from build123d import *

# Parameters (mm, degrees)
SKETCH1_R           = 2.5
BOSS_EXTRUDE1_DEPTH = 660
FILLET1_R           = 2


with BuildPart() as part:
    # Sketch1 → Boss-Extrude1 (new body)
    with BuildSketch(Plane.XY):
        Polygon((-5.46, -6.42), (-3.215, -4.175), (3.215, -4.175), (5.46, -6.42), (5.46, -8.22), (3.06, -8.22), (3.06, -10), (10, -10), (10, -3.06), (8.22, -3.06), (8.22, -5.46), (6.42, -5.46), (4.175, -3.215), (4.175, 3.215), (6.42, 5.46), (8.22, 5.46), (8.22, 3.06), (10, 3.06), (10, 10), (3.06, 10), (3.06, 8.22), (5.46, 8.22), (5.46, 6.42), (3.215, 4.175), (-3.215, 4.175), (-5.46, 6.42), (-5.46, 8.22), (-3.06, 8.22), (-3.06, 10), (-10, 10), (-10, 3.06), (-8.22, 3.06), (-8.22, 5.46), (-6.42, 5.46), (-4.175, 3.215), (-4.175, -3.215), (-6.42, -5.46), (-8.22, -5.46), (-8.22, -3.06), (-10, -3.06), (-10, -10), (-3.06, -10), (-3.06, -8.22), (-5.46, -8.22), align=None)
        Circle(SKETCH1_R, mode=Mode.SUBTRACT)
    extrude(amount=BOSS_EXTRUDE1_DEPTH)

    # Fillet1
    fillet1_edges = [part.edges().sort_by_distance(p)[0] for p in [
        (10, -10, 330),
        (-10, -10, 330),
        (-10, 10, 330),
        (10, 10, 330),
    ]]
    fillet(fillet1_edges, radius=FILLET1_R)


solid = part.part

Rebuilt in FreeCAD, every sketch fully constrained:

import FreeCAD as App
import Part
import Sketcher


def edges_at(feature, points):
    """Names of the edges that pass closest to the given points."""
    edges = feature.Shape.Edges
    near = lambda p: min(range(len(edges)), key=lambda i: edges[i].distToShape(Part.Vertex(*p))[0])
    return sorted({f"Edge{near(p) + 1}" for p in points})

doc = App.newDocument("Part")
params = doc.addObject("Spreadsheet::Sheet", "Params")
for row, (alias, value) in enumerate([
    ("sketch1_diameter", "5 mm"),
    ("sketch1_width", "2.4 mm"),
    ("sketch1_width2", "1.8 mm"),
    ("sketch1_width3", "6.43 mm"),
    ("sketch1_width4", "6.94 mm"),
    ("pad1_length", "660 mm"),
    ("fillet_radius", "2 mm"),
], start=1):
    params.set(f"A{row}", alias)
    params.set(f"B{row}", "=" + value)
    params.setAlias(f"B{row}", alias)

body = doc.addObject("PartDesign::Body", "Body")

# Sketch on XY plane
sketch1 = body.newObject("Sketcher::SketchObject", "Sketch")
sketch1.AttachmentSupport = (doc.getObject("XY_Plane"), [""])
sketch1.MapMode = "FlatFace"
sketch1.addGeometry([
    Part.LineSegment(App.Vector(-5.46, -6.42, 0), App.Vector(-3.215, -4.175, 0)),  # 0
    Part.LineSegment(App.Vector(-3.215, -4.175, 0), App.Vector(3.215, -4.175, 0)),  # 1
    Part.LineSegment(App.Vector(3.215, -4.175, 0), App.Vector(5.46, -6.42, 0)),  # 2
    Part.LineSegment(App.Vector(5.46, -6.42, 0), App.Vector(5.46, -8.22, 0)),  # 3
    Part.LineSegment(App.Vector(5.46, -8.22, 0), App.Vector(3.06, -8.22, 0)),  # 4
    Part.LineSegment(App.Vector(3.06, -8.22, 0), App.Vector(3.06, -10, 0)),  # 5
    Part.LineSegment(App.Vector(3.06, -10, 0), App.Vector(10, -10, 0)),  # 6
    Part.LineSegment(App.Vector(10, -10, 0), App.Vector(10, -3.06, 0)),  # 7
    Part.LineSegment(App.Vector(10, -3.06, 0), App.Vector(8.22, -3.06, 0)),  # 8
    Part.LineSegment(App.Vector(8.22, -3.06, 0), App.Vector(8.22, -5.46, 0)),  # 9
    Part.LineSegment(App.Vector(8.22, -5.46, 0), App.Vector(6.42, -5.46, 0)),  # 10
    Part.LineSegment(App.Vector(6.42, -5.46, 0), App.Vector(4.175, -3.215, 0)),  # 11
    Part.LineSegment(App.Vector(4.175, -3.215, 0), App.Vector(4.175, 3.215, 0)),  # 12
    Part.LineSegment(App.Vector(4.175, 3.215, 0), App.Vector(6.42, 5.46, 0)),  # 13
    Part.LineSegment(App.Vector(6.42, 5.46, 0), App.Vector(8.22, 5.46, 0)),  # 14
    Part.LineSegment(App.Vector(8.22, 5.46, 0), App.Vector(8.22, 3.06, 0)),  # 15
    Part.LineSegment(App.Vector(8.22, 3.06, 0), App.Vector(10, 3.06, 0)),  # 16
    Part.LineSegment(App.Vector(10, 3.06, 0), App.Vector(10, 10, 0)),  # 17
    Part.LineSegment(App.Vector(10, 10, 0), App.Vector(3.06, 10, 0)),  # 18
    Part.LineSegment(App.Vector(3.06, 10, 0), App.Vector(3.06, 8.22, 0)),  # 19
    Part.LineSegment(App.Vector(3.06, 8.22, 0), App.Vector(5.46, 8.22, 0)),  # 20
    Part.LineSegment(App.Vector(5.46, 8.22, 0), App.Vector(5.46, 6.42, 0)),  # 21
    Part.LineSegment(App.Vector(5.46, 6.42, 0), App.Vector(3.215, 4.175, 0)),  # 22
    Part.LineSegment(App.Vector(3.215, 4.175, 0), App.Vector(-3.215, 4.175, 0)),  # 23
    Part.LineSegment(App.Vector(-3.215, 4.175, 0), App.Vector(-5.46, 6.42, 0)),  # 24
    Part.LineSegment(App.Vector(-5.46, 6.42, 0), App.Vector(-5.46, 8.22, 0)),  # 25
    Part.LineSegment(App.Vector(-5.46, 8.22, 0), App.Vector(-3.06, 8.22, 0)),  # 26
    Part.LineSegment(App.Vector(-3.06, 8.22, 0), App.Vector(-3.06, 10, 0)),  # 27
    Part.LineSegment(App.Vector(-3.06, 10, 0), App.Vector(-10, 10, 0)),  # 28
    Part.LineSegment(App.Vector(-10, 10, 0), App.Vector(-10, 3.06, 0)),  # 29
    Part.LineSegment(App.Vector(-10, 3.06, 0), App.Vector(-8.22, 3.06, 0)),  # 30
    Part.LineSegment(App.Vector(-8.22, 3.06, 0), App.Vector(-8.22, 5.46, 0)),  # 31
    Part.LineSegment(App.Vector(-8.22, 5.46, 0), App.Vector(-6.42, 5.46, 0)),  # 32
    Part.LineSegment(App.Vector(-6.42, 5.46, 0), App.Vector(-4.175, 3.215, 0)),  # 33
    Part.LineSegment(App.Vector(-4.175, 3.215, 0), App.Vector(-4.175, -3.215, 0)),  # 34
    Part.LineSegment(App.Vector(-4.175, -3.215, 0), App.Vector(-6.42, -5.46, 0)),  # 35
    Part.LineSegment(App.Vector(-6.42, -5.46, 0), App.Vector(-8.22, -5.46, 0)),  # 36
    Part.LineSegment(App.Vector(-8.22, -5.46, 0), App.Vector(-8.22, -3.06, 0)),  # 37
    Part.LineSegment(App.Vector(-8.22, -3.06, 0), App.Vector(-10, -3.06, 0)),  # 38
    Part.LineSegment(App.Vector(-10, -3.06, 0), App.Vector(-10, -10, 0)),  # 39
    Part.LineSegment(App.Vector(-10, -10, 0), App.Vector(-3.06, -10, 0)),  # 40
    Part.LineSegment(App.Vector(-3.06, -10, 0), App.Vector(-3.06, -8.22, 0)),  # 41
    Part.LineSegment(App.Vector(-3.06, -8.22, 0), App.Vector(-5.46, -8.22, 0)),  # 42
    Part.LineSegment(App.Vector(-5.46, -8.22, 0), App.Vector(-5.46, -6.42, 0)),  # 43
    Part.Circle(App.Vector(0, 0, 0), App.Vector(0, 0, 1), 2.5),  # 44
], False)
sketch1.addConstraint([
    Sketcher.Constraint("Coincident", 0, 2, 1, 1),
    Sketcher.Constraint("Coincident", 1, 2, 2, 1),
    Sketcher.Constraint("Coincident", 2, 2, 3, 1),
    Sketcher.Constraint("Coincident", 3, 2, 4, 1),
    Sketcher.Constraint("Coincident", 4, 2, 5, 1),
    Sketcher.Constraint("Coincident", 5, 2, 6, 1),
    Sketcher.Constraint("Coincident", 6, 2, 7, 1),
    Sketcher.Constraint("Coincident", 7, 2, 8, 1),
    Sketcher.Constraint("Coincident", 8, 2, 9, 1),
    Sketcher.Constraint("Coincident", 9, 2, 10, 1),
    Sketcher.Constraint("Coincident", 10, 2, 11, 1),
    Sketcher.Constraint("Coincident", 11, 2, 12, 1),
    Sketcher.Constraint("Coincident", 12, 2, 13, 1),
    Sketcher.Constraint("Coincident", 13, 2, 14, 1),
    Sketcher.Constraint("Coincident", 14, 2, 15, 1),
    Sketcher.Constraint("Coincident", 15, 2, 16, 1),
    Sketcher.Constraint("Coincident", 16, 2, 17, 1),
    Sketcher.Constraint("Coincident", 17, 2, 18, 1),
    Sketcher.Constraint("Coincident", 18, 2, 19, 1),
    Sketcher.Constraint("Coincident", 19, 2, 20, 1),
    Sketcher.Constraint("Coincident", 20, 2, 21, 1),
    Sketcher.Constraint("Coincident", 21, 2, 22, 1),
    Sketcher.Constraint("Coincident", 22, 2, 23, 1),
    Sketcher.Constraint("Coincident", 23, 2, 24, 1),
    Sketcher.Constraint("Coincident", 24, 2, 25, 1),
    Sketcher.Constraint("Coincident", 25, 2, 26, 1),
    Sketcher.Constraint("Coincident", 26, 2, 27, 1),
    Sketcher.Constraint("Coincident", 27, 2, 28, 1),
    Sketcher.Constraint("Coincident", 28, 2, 29, 1),
    Sketcher.Constraint("Coincident", 29, 2, 30, 1),
    Sketcher.Constraint("Coincident", 30, 2, 31, 1),
    Sketcher.Constraint("Coincident", 31, 2, 32, 1),
    Sketcher.Constraint("Coincident", 32, 2, 33, 1),
    Sketcher.Constraint("Coincident", 33, 2, 34, 1),
    Sketcher.Constraint("Coincident", 34, 2, 35, 1),
    Sketcher.Constraint("Coincident", 35, 2, 36, 1),
    Sketcher.Constraint("Coincident", 36, 2, 37, 1),
    Sketcher.Constraint("Coincident", 37, 2, 38, 1),
    Sketcher.Constraint("Coincident", 38, 2, 39, 1),
    Sketcher.Constraint("Coincident", 39, 2, 40, 1),
    Sketcher.Constraint("Coincident", 40, 2, 41, 1),
    Sketcher.Constraint("Coincident", 41, 2, 42, 1),
    Sketcher.Constraint("Coincident", 42, 2, 43, 1),
    Sketcher.Constraint("Coincident", 43, 2, 0, 1),
    Sketcher.Constraint("Horizontal", 1),
    Sketcher.Constraint("Vertical", 3),
    Sketcher.Constraint("Horizontal", 4),
    Sketcher.Constraint("Vertical", 5),
    Sketcher.Constraint("Horizontal", 6),
    Sketcher.Constraint("Vertical", 7),
    Sketcher.Constraint("Horizontal", 8),
    Sketcher.Constraint("Vertical", 9),
    Sketcher.Constraint("Horizontal", 10),
    Sketcher.Constraint("Vertical", 12),
    Sketcher.Constraint("Horizontal", 14),
    Sketcher.Constraint("Vertical", 15),
    Sketcher.Constraint("Horizontal", 16),
    Sketcher.Constraint("Vertical", 17),
    Sketcher.Constraint("Horizontal", 18),
    Sketcher.Constraint("Vertical", 19),
    Sketcher.Constraint("Horizontal", 20),
    Sketcher.Constraint("Vertical", 21),
    Sketcher.Constraint("Horizontal", 23),
    Sketcher.Constraint("Vertical", 25),
    Sketcher.Constraint("Horizontal", 26),
    Sketcher.Constraint("Vertical", 27),
    Sketcher.Constraint("Horizontal", 28),
    Sketcher.Constraint("Vertical", 29),
    Sketcher.Constraint("Horizontal", 30),
    Sketcher.Constraint("Vertical", 31),
    Sketcher.Constraint("Horizontal", 32),
    Sketcher.Constraint("Vertical", 34),
    Sketcher.Constraint("Horizontal", 36),
    Sketcher.Constraint("Vertical", 37),
    Sketcher.Constraint("Horizontal", 38),
    Sketcher.Constraint("Vertical", 39),
    Sketcher.Constraint("Horizontal", 40),
    Sketcher.Constraint("Vertical", 41),
    Sketcher.Constraint("Horizontal", 42),
    Sketcher.Constraint("Vertical", 43),
    Sketcher.Constraint("Coincident", 44, 3, -1, 1),
    Sketcher.Constraint("Symmetric", 0, 2, 22, 2, -1, 1),
    Sketcher.Constraint("Symmetric", 2, 2, 24, 2, -1, 1),
    Sketcher.Constraint("Symmetric", 4, 2, 26, 2, -1, 1),
    Sketcher.Constraint("Symmetric", 6, 2, 28, 2, -1, 1),
    Sketcher.Constraint("Symmetric", 8, 2, 30, 2, -1, 1),
    Sketcher.Constraint("Symmetric", 10, 2, 32, 2, -1, 1),
    Sketcher.Constraint("Symmetric", 11, 2, 33, 2, -1, 1),
    Sketcher.Constraint("Symmetric", 13, 2, 35, 2, -1, 1),
    Sketcher.Constraint("Symmetric", 15, 2, 37, 2, -1, 1),
    Sketcher.Constraint("Symmetric", 17, 2, 39, 2, -1, 1),
    Sketcher.Constraint("Symmetric", 19, 2, 41, 2, -1, 1),
    Sketcher.Constraint("Symmetric", 21, 2, 43, 2, -1, 1),
    Sketcher.Constraint("Symmetric", 21, 2, 24, 2, -2),
    Sketcher.Constraint("Symmetric", 19, 2, 26, 2, -2),
    Sketcher.Constraint("Symmetric", 17, 2, 28, 2, -2),
    Sketcher.Constraint("Symmetric", 15, 2, 30, 2, -2),
    Sketcher.Constraint("Symmetric", 13, 2, 32, 2, -2),
    Sketcher.Constraint("Perpendicular", 0, 2),
    Sketcher.Constraint("Parallel", 2, 11),
    Sketcher.Constraint("Perpendicular", 11, 13),
    Sketcher.Constraint("Perpendicular", 22, 24),
    Sketcher.Constraint("Perpendicular", 33, 35),
    Sketcher.Constraint("Horizontal", 12, 2, 33, 2),
    Sketcher.Constraint("Equal", 36, 3),
    Sketcher.Constraint("Equal", 38, 5),
    Sketcher.Constraint("Equal", 40, 7),
    Sketcher.Constraint("Equal", 42, 9),
    Sketcher.Constraint("Equal", 23, 12),
    Sketcher.Constraint("Equal", 2, 11),
    Sketcher.Constraint("Diameter", 44, 5.0),
    Sketcher.Constraint("DistanceX", 4, 2, 4, 1, 2.4),
    Sketcher.Constraint("DistanceX", 10, 2, 10, 1, 1.8),
    Sketcher.Constraint("DistanceY", 5, 2, -1, 1, 10.0),
    Sketcher.Constraint("DistanceX", 1, 1, 1, 2, 6.43),
    Sketcher.Constraint("DistanceX", 6, 1, 6, 2, 6.94),
    Sketcher.Constraint("DistanceX", 8, 2, 8, 1, 1.78),
])
sketch1.setExpression("Constraints[110]", "Params.sketch1_diameter")
sketch1.setExpression("Constraints[111]", "Params.sketch1_width")
sketch1.setExpression("Constraints[112]", "Params.sketch1_width2")
sketch1.setExpression("Constraints[114]", "Params.sketch1_width3")
sketch1.setExpression("Constraints[115]", "Params.sketch1_width4")
pad1 = body.newObject("PartDesign::Pad", "Pad")
pad1.Profile = sketch1
pad1.setExpression("Length", "Params.pad1_length")
doc.recompute()

fillet = body.newObject("PartDesign::Fillet", "Fillet")
fillet.Base = (pad1, edges_at(pad1, [
    (10, -10, 330),
    (-10, -10, 330),
    (-10, 10, 330),
    (10, 10, 330),
]))
fillet.setExpression("Radius", "Params.fillet_radius")

doc.recompute()
